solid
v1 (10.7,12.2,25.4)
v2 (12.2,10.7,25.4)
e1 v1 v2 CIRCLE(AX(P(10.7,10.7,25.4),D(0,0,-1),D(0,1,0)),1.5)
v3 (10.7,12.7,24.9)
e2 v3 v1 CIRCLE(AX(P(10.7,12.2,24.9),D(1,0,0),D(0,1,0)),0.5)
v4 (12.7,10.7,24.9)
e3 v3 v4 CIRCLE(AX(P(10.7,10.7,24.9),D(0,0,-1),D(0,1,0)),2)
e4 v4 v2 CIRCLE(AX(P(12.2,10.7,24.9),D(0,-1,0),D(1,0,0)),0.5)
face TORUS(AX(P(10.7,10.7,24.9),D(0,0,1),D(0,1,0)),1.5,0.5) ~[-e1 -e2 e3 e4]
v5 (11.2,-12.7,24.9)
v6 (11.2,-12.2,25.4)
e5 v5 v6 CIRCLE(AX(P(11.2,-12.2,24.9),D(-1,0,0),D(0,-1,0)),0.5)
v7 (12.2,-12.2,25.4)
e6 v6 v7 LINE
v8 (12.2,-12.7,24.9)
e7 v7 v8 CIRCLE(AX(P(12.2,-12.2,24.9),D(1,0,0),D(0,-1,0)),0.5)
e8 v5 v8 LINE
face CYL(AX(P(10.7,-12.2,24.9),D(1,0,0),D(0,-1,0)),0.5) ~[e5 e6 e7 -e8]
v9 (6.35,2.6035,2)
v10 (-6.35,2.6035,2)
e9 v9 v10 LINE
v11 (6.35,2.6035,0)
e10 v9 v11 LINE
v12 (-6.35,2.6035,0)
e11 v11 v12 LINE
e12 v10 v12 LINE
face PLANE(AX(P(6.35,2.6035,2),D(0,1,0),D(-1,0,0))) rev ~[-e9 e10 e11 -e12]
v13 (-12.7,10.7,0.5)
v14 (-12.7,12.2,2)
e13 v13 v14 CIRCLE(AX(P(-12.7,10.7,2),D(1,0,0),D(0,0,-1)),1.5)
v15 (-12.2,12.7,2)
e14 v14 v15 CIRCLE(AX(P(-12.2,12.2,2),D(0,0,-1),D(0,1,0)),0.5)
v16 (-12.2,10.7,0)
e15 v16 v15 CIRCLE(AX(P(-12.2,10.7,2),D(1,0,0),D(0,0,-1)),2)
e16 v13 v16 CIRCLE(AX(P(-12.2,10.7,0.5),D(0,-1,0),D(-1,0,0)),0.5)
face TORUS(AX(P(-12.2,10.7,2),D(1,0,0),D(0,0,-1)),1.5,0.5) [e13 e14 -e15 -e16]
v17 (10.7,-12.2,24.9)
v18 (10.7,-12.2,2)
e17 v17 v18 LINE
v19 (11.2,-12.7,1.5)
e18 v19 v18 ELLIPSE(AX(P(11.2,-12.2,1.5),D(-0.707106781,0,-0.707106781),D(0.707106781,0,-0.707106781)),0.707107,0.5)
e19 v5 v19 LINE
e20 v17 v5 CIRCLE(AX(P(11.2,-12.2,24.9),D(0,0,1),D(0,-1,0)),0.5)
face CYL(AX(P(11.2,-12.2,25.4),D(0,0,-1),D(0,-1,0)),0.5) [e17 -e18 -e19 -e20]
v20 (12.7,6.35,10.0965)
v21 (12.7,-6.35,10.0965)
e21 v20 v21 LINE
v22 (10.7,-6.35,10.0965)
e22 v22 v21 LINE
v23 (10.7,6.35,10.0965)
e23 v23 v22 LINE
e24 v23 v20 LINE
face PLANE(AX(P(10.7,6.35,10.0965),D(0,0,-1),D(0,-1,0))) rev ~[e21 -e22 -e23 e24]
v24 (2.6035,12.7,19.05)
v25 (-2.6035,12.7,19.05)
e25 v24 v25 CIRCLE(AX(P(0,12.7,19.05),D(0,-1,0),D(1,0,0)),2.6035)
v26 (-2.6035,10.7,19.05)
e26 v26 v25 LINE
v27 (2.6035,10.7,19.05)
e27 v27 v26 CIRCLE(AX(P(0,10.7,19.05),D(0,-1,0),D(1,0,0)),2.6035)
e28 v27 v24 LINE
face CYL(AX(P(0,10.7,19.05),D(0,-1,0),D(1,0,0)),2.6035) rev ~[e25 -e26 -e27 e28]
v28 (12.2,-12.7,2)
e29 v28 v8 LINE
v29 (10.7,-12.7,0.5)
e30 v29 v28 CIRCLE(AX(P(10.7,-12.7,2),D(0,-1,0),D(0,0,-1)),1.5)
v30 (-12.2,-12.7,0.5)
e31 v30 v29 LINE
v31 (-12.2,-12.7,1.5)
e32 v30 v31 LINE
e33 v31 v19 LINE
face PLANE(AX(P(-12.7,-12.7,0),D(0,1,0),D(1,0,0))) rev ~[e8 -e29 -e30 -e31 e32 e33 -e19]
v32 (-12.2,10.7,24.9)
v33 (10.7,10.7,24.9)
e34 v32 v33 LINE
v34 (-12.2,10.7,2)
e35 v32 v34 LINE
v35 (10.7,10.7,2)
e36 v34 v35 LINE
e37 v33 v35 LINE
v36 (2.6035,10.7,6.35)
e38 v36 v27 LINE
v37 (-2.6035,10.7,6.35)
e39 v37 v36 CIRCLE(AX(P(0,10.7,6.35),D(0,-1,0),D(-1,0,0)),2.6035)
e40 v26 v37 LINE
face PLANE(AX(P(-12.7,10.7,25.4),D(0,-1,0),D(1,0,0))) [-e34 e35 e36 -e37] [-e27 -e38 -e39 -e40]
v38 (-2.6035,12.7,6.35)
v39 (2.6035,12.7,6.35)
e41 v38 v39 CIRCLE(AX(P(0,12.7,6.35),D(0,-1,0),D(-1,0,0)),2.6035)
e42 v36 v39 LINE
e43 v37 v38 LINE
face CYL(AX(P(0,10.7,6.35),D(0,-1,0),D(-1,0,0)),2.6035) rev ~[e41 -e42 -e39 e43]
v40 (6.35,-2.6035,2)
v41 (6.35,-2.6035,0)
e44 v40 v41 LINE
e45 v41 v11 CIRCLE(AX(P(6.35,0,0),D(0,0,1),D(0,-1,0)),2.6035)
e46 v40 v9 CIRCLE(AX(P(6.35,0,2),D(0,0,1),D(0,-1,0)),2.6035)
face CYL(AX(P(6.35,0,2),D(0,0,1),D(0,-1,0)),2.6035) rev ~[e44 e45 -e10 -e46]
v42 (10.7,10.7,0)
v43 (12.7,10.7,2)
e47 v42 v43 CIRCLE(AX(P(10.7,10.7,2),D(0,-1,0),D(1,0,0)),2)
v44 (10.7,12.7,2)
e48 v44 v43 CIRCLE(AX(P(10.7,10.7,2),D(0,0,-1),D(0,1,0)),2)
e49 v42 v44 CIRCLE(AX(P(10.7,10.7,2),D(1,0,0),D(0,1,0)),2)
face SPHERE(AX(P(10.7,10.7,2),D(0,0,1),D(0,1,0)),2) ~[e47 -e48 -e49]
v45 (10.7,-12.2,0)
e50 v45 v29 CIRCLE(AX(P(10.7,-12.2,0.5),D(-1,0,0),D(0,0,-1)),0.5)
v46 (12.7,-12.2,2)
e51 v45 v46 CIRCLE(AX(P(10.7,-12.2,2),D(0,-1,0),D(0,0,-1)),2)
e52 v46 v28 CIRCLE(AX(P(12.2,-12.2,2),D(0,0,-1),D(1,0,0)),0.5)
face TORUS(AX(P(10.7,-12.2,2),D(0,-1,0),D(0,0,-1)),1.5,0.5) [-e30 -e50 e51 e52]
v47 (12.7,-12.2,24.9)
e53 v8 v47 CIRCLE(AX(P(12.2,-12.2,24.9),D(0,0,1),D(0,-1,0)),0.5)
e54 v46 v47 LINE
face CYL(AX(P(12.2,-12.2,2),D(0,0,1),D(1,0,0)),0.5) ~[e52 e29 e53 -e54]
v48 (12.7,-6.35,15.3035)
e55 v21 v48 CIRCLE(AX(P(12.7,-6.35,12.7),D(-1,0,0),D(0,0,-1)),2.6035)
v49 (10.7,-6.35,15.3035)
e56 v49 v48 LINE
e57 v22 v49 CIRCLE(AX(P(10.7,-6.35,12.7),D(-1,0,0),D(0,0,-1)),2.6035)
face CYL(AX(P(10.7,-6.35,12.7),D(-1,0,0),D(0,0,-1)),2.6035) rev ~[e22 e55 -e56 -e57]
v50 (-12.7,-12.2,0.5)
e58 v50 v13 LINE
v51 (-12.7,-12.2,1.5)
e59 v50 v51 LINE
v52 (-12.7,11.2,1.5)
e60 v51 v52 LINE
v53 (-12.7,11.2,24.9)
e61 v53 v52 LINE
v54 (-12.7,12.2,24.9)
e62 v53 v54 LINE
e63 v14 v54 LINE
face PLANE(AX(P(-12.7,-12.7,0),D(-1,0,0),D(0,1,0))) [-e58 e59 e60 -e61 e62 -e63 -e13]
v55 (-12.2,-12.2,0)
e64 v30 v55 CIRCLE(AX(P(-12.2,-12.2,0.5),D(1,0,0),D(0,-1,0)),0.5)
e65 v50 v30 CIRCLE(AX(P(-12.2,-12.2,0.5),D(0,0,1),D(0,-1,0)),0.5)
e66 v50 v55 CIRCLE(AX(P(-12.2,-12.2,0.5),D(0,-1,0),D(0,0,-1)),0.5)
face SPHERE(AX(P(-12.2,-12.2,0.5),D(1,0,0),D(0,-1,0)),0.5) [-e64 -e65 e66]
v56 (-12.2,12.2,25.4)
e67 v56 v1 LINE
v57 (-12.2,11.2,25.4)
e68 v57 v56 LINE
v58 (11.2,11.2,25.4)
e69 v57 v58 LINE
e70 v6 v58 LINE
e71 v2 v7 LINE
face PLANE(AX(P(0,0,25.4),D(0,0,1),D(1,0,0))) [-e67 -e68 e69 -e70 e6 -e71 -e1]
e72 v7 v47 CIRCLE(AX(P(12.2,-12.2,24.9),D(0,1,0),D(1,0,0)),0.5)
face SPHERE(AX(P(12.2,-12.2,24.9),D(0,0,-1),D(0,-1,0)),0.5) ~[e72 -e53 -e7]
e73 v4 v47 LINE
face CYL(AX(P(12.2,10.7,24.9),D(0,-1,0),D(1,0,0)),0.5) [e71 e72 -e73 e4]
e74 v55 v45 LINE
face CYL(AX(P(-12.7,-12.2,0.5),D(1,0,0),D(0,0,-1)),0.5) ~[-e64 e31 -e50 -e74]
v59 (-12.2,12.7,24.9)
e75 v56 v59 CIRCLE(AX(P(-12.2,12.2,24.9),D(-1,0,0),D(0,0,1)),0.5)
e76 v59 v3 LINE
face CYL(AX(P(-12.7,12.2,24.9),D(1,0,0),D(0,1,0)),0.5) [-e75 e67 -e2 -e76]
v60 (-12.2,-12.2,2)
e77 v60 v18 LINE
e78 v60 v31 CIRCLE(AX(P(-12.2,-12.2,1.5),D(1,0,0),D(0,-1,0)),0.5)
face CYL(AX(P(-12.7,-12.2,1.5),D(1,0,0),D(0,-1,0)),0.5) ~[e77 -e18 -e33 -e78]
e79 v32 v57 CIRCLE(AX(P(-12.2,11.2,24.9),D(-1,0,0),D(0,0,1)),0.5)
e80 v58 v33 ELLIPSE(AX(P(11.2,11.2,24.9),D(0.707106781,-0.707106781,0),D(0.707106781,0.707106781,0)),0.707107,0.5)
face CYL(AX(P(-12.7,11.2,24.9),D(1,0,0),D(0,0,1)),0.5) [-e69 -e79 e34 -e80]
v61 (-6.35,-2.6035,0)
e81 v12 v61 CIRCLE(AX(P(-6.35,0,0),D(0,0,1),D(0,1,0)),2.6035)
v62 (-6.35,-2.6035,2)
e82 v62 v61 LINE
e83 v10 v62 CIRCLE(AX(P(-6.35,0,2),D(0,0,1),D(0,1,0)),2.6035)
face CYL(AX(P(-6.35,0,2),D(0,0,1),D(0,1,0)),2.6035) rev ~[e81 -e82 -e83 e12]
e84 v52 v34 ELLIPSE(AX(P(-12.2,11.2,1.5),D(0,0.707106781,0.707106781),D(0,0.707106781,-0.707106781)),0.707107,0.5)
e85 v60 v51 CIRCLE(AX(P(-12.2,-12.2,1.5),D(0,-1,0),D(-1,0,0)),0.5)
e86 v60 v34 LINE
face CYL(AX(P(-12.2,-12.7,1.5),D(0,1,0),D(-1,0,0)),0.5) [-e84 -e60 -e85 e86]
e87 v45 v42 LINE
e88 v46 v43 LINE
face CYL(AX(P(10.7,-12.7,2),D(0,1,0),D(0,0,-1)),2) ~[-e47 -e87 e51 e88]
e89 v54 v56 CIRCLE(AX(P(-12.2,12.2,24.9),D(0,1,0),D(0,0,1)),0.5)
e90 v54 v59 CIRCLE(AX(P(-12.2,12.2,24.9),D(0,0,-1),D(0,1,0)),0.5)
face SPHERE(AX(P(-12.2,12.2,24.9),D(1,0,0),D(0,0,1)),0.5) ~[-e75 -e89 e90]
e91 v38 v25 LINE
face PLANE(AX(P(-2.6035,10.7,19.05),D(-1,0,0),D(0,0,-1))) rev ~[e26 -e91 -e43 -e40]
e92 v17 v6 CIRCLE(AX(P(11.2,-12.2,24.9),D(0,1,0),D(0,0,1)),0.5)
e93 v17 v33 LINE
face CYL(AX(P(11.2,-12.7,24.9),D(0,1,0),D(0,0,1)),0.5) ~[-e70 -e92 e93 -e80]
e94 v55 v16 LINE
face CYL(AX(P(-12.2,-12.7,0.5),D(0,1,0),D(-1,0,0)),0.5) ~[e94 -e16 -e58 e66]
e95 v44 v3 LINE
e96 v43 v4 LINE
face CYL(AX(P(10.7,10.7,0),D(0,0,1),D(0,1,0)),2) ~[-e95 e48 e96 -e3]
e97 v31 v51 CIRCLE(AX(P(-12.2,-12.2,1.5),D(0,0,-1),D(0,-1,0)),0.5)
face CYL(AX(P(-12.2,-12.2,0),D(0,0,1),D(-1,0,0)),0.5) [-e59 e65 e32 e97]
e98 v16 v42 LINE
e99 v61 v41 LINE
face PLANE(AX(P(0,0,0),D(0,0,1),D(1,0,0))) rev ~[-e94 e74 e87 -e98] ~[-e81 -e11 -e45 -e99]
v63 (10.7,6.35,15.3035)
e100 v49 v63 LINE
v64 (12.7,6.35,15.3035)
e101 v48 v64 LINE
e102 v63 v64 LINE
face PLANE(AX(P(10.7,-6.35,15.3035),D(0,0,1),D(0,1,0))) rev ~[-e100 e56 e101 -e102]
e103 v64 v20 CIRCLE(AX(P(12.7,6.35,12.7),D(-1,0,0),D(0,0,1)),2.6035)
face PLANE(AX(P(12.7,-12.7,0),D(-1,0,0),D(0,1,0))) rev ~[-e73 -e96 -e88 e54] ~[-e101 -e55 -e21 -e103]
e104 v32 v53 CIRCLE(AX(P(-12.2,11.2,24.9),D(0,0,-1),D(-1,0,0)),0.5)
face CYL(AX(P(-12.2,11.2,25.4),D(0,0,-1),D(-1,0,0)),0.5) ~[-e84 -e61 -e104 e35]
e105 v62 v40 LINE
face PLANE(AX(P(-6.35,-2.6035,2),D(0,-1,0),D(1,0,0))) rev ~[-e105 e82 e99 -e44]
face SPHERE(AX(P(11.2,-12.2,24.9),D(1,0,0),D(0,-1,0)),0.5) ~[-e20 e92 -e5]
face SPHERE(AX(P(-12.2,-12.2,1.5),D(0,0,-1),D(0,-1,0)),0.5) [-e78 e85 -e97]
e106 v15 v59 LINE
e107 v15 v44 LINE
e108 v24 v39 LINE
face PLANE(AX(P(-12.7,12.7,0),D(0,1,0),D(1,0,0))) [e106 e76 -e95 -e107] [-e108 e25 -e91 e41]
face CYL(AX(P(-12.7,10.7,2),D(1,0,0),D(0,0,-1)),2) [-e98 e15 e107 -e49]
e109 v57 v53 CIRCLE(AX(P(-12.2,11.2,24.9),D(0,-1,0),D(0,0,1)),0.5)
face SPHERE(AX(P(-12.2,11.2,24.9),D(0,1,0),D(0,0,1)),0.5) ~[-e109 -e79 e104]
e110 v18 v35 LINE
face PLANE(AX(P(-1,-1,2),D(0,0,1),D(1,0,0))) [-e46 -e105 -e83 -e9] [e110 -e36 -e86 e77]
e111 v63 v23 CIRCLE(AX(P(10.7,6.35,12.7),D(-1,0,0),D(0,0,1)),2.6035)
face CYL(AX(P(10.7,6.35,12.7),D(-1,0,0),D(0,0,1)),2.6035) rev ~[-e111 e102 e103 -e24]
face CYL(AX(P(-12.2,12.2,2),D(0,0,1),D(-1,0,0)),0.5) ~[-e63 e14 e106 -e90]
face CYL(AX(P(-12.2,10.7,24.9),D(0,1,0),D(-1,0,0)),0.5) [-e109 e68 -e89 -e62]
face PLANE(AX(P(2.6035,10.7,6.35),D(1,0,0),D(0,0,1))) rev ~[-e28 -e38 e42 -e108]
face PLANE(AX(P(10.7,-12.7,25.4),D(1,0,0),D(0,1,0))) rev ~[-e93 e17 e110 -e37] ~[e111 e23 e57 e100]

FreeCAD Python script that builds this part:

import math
import FreeCAD as App
import Part
import Sketcher

V = App.Vector


def edges_at(feature, points):
    """Names of the edges that pass closest to the given points."""
    edges = feature.Shape.Edges
    near = lambda p: min(range(len(edges)), key=lambda i: edges[i].distToShape(Part.Vertex(*p))[0])
    return sorted({f"Edge{near(p) + 1}" for p in points})

doc = App.newDocument("Part")
body = doc.addObject("PartDesign::Body", "Body")

# Sketch on XY plane
sketch1 = doc.addObject("Sketcher::SketchObject", "Sketch")
body.addObject(sketch1)
sketch1.AttachmentSupport = (doc.XY_Plane, [""])
sketch1.MapMode = "FlatFace"
sketch1.addGeometry([
    Part.LineSegment(V(-12.7, 12.7, 0), V(-12.7, -12.7, 0)),
    Part.LineSegment(V(-12.7, -12.7, 0), V(12.7, -12.7, 0)),
    Part.LineSegment(V(12.7, -12.7, 0), V(12.7, 12.7, 0)),
    Part.LineSegment(V(12.7, 12.7, 0), V(-12.7, 12.7, 0)),
], False)
sketch1.addConstraint([
    Sketcher.Constraint("Coincident", 0, 2, 1, 1),
    Sketcher.Constraint("Coincident", 1, 2, 2, 1),
    Sketcher.Constraint("Coincident", 2, 2, 3, 1),
    Sketcher.Constraint("Coincident", 3, 2, 0, 1),
    Sketcher.Constraint("Vertical", 0),
    Sketcher.Constraint("Horizontal", 1),
    Sketcher.Constraint("Vertical", 2),
    Sketcher.Constraint("Horizontal", 3),
    Sketcher.Constraint("Symmetric", 0, 2, 2, 2, -1, 1),
    Sketcher.Constraint("Equal", 3, 0),
    Sketcher.Constraint("DistanceX", 1, 1, 1, 2, 25.4),
])
pad1 = doc.addObject("PartDesign::Pad", "Pad")
body.addObject(pad1)
pad1.Profile = sketch1
pad1.Length = 25.4

# Sketch on XY plane
sketch2 = doc.addObject("Sketcher::SketchObject", "Sketch001")
body.addObject(sketch2)
sketch2.AttachmentSupport = (doc.XY_Plane, [""])
sketch2.MapMode = "FlatFace"
sketch2.AttachmentOffset = App.Placement(V(0, 0, 25.4), App.Rotation())
sketch2.addGeometry([
    Part.LineSegment(V(-12.7, 10.7, 0), V(-12.7, -12.7, 0)),
    Part.LineSegment(V(-12.7, -12.7, 0), V(10.7, -12.7, 0)),
    Part.LineSegment(V(10.7, -12.7, 0), V(10.7, 10.7, 0)),
    Part.LineSegment(V(10.7, 10.7, 0), V(-12.7, 10.7, 0)),
], False)
sketch2.addConstraint([
    Sketcher.Constraint("Coincident", 0, 2, 1, 1),
    Sketcher.Constraint("Coincident", 1, 2, 2, 1),
    Sketcher.Constraint("Coincident", 2, 2, 3, 1),
    Sketcher.Constraint("Coincident", 3, 2, 0, 1),
    Sketcher.Constraint("Vertical", 0),
    Sketcher.Constraint("Horizontal", 1),
    Sketcher.Constraint("Vertical", 2),
    Sketcher.Constraint("Horizontal", 3),
    Sketcher.Constraint("Equal", 3, 0),
    Sketcher.Constraint("DistanceX", 1, 1, 1, 2, 23.4),
    Sketcher.Constraint("DistanceX", 0, 2, -1, 1, 12.7),
    Sketcher.Constraint("DistanceY", 0, 2, -1, 1, 12.7),
])
pocket1 = doc.addObject("PartDesign::Pocket", "Pocket")
body.addObject(pocket1)
pocket1.Profile = sketch2
pocket1.Length = 23.4

# Sketch on XY plane
sketch3 = doc.addObject("Sketcher::SketchObject", "Sketch002")
body.addObject(sketch3)
sketch3.AttachmentSupport = (doc.XY_Plane, [""])
sketch3.MapMode = "FlatFace"
sketch3.AttachmentOffset = App.Placement(V(0, 0, 2), App.Rotation())
sketch3.addGeometry([
    Part.ArcOfCircle(Part.Circle(V(-6.35, 0, 0), V(0, 0, 1), 2.6035), math.radians(90), math.radians(270)),
    Part.LineSegment(V(-6.35, -2.6035, 0), V(6.35, -2.6035, 0)),
    Part.ArcOfCircle(Part.Circle(V(6.35, 0, 0), V(0, 0, 1), 2.6035), math.radians(-90), math.radians(90)),
    Part.LineSegment(V(6.35, 2.6035, 0), V(-6.35, 2.6035, 0)),
], False)
sketch3.addConstraint([
    Sketcher.Constraint("Tangent", 0, 2, 1, 1),
    Sketcher.Constraint("Tangent", 1, 2, 2, 1),
    Sketcher.Constraint("Tangent", 2, 2, 3, 1),
    Sketcher.Constraint("Tangent", 3, 2, 0, 1),
    Sketcher.Constraint("Horizontal", 1),
    Sketcher.Constraint("Horizontal", 3),
    Sketcher.Constraint("Symmetric", 0, 3, 2, 3, -1, 1),
    Sketcher.Constraint("DistanceX", 1, 1, 1, 2, 12.7),
    Sketcher.Constraint("Radius", 0, 2.6035),
])
pocket2 = doc.addObject("PartDesign::Pocket", "Pocket001")
body.addObject(pocket2)
pocket2.Profile = sketch3
pocket2.Type = "ThroughAll"

# Sketch on YZ plane
sketch4 = doc.addObject("Sketcher::SketchObject", "Sketch003")
body.addObject(sketch4)
sketch4.AttachmentSupport = (doc.YZ_Plane, [""])
sketch4.MapMode = "FlatFace"
sketch4.AttachmentOffset = App.Placement(V(0, 0, 10.7), App.Rotation())
sketch4.addGeometry([
    Part.ArcOfCircle(Part.Circle(V(6.35, 12.7, 0), V(0, 0, 1), 2.6035), math.radians(-90), math.radians(90)),
    Part.LineSegment(V(6.35, 10.0965, 0), V(-6.35, 10.0965, 0)),
    Part.ArcOfCircle(Part.Circle(V(-6.35, 12.7, 0), V(0, 0, 1), 2.6035), math.radians(90), math.radians(270)),
    Part.LineSegment(V(-6.35, 15.3035, 0), V(6.35, 15.3035, 0)),
], False)
sketch4.addConstraint([
    Sketcher.Constraint("Tangent", 0, 1, 1, 1),
    Sketcher.Constraint("Tangent", 1, 2, 2, 2),
    Sketcher.Constraint("Tangent", 2, 1, 3, 1),
    Sketcher.Constraint("Tangent", 3, 2, 0, 2),
    Sketcher.Constraint("Horizontal", 1),
    Sketcher.Constraint("Horizontal", 3),
    Sketcher.Constraint("DistanceX", 1, 2, 1, 1, 12.7),
    Sketcher.Constraint("DistanceY", -1, 1, 0, 3, 12.7),
    Sketcher.Constraint("Radius", 0, 2.6035),
    Sketcher.Constraint("DistanceX", -1, 1, 0, 3, 6.35),
])
pocket3 = doc.addObject("PartDesign::Pocket", "Pocket002")
body.addObject(pocket3)
pocket3.Profile = sketch4
pocket3.Type = "ThroughAll"
pocket3.Reversed = True

# Sketch on XZ plane
sketch5 = doc.addObject("Sketcher::SketchObject", "Sketch004")
body.addObject(sketch5)
sketch5.AttachmentSupport = (doc.XZ_Plane, [""])
sketch5.MapMode = "FlatFace"
sketch5.AttachmentOffset = App.Placement(V(0, 0, -10.7), App.Rotation())
sketch5.addGeometry([
    Part.ArcOfCircle(Part.Circle(V(0, 19.05, 0), V(0, 0, 1), 2.6035), math.radians(0), math.radians(180)),
    Part.LineSegment(V(-2.6035, 19.05, 0), V(-2.6035, 6.35, 0)),
    Part.ArcOfCircle(Part.Circle(V(0, 6.35, 0), V(0, 0, 1), 2.6035), math.radians(180), math.radians(360)),
    Part.LineSegment(V(2.6035, 6.35, 0), V(2.6035, 19.05, 0)),
], False)
sketch5.addConstraint([
    Sketcher.Constraint("Tangent", 0, 2, 1, 1),
    Sketcher.Constraint("Tangent", 1, 2, 2, 1),
    Sketcher.Constraint("Tangent", 2, 2, 3, 1),
    Sketcher.Constraint("Tangent", 3, 2, 0, 1),
    Sketcher.Constraint("Vertical", 1),
    Sketcher.Constraint("Vertical", 3),
    Sketcher.Constraint("PointOnObject", 0, 3, -2),
    Sketcher.Constraint("DistanceY", 1, 2, 1, 1, 12.7),
    Sketcher.Constraint("Radius", 0, 2.6035),
    Sketcher.Constraint("DistanceY", -1, 1, 0, 3, 19.05),
])
pocket4 = doc.addObject("PartDesign::Pocket", "Pocket003")
body.addObject(pocket4)
pocket4.Profile = sketch5
pocket4.Type = "ThroughAll"
doc.recompute()

fillet = doc.addObject("PartDesign::Fillet", "Fillet")
body.addObject(fillet)
fillet.Base = (pocket4, edges_at(pocket4, [(12.7, 12.7, 12.7), (0, 12.7, 0), (12.7, 0, 0)]))
fillet.Radius = 2
doc.recompute()

fillet2 = doc.addObject("PartDesign::Fillet", "Fillet001")
body.addObject(fillet2)
fillet2.Base = (fillet, edges_at(fillet, [
    (-1, -12.7, 0),
    (12.114, -12.7, 0.586),
    (-12.7, -12.7, 1),
    (12.7, -12.7, 13.7),
    (-1, -12.7, 2),
    (11.7, -12.7, 25.4),
    (10.7, -12.7, 13.7),
    (-1, 12.7, 25.4),
    (12.114, 12.114, 25.4),
    (-12.7, 11.7, 25.4),
    (12.7, -1, 25.4),
    (-1, 10.7, 25.4),
    (10.7, -1, 25.4),
    (-12.7, -1, 0),
    (-12.7, 12.114, 0.586),
    (-12.7, 12.7, 13.7),
    (-12.7, -1, 2),
    (-12.7, 10.7, 13.7),
]))
fillet2.Radius = 0.5

doc.recompute()
